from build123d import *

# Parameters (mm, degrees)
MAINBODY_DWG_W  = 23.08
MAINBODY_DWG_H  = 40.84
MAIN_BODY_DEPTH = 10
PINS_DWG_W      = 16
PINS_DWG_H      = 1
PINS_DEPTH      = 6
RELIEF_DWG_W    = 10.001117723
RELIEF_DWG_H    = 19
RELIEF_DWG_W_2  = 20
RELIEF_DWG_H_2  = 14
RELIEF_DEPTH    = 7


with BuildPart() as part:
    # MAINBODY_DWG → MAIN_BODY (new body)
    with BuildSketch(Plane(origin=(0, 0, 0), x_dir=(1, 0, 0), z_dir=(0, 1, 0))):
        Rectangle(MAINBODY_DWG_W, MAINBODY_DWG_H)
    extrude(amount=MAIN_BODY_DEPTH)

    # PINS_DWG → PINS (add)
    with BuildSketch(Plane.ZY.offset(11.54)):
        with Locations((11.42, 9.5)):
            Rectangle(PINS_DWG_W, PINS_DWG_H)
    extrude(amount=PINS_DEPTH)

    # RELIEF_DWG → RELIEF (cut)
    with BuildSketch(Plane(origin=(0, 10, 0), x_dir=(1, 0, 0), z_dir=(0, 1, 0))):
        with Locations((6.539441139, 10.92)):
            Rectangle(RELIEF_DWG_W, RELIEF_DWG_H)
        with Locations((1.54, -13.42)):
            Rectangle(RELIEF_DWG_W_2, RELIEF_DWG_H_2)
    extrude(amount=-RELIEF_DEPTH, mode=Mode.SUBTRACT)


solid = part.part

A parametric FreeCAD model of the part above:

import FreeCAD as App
import Part
import Sketcher

V = App.Vector
Q = App.Units.Quantity


def add_polygon(sketch, points):
    """Adds a closed chain of lines whose ends are joined by coincident constraints."""
    first, n = sketch.GeometryCount, len(points)
    for a, b in zip(points, points[1:] + points[:1]):
        sketch.addGeometry(Part.LineSegment(App.Vector(*a, 0), App.Vector(*b, 0)), False)
    for i in range(n):
        sketch.addConstraint(Sketcher.Constraint("Coincident", first + i, 2, first + (i + 1) % n, 1))

doc = App.newDocument("Part")
body = doc.addObject("PartDesign::Body", "Body")

# Sketch on XZ plane
sketch1 = body.newObject("Sketcher::SketchObject", "Sketch")
sketch1.AttachmentSupport = (doc.getObject("XZ_Plane"), [""])
sketch1.MapMode = "FlatFace"
add_polygon(sketch1, [(-11.54, -20.42), (-11.54, 20.42), (11.54, 20.42), (11.54, -20.42)])  # lines 0-3
sketch1.addConstraint([
    Sketcher.Constraint("Vertical", 0),
    Sketcher.Constraint("Horizontal", 1),
    Sketcher.Constraint("Vertical", 2),
    Sketcher.Constraint("Horizontal", 3),
    Sketcher.Constraint("Symmetric", 0, 2, 2, 2, -1, 1),
    Sketcher.Constraint("DistanceX", 1, 1, 1, 2, Q("23.08 mm")),
    Sketcher.Constraint("DistanceY", 0, 1, 0, 2, Q("40.84 mm")),
])
pad1 = body.newObject("PartDesign::Pad", "Pad")
pad1.Profile = sketch1
pad1.Length = 10
pad1.Reversed = True

# Sketch on YZ plane
sketch2 = body.newObject("Sketcher::SketchObject", "Sketch001")
sketch2.AttachmentSupport = (doc.getObject("YZ_Plane"), [""])
sketch2.MapMode = "FlatFace"
sketch2.AttachmentOffset = App.Placement(V(0, 0, -11.54), App.Rotation())
add_polygon(sketch2, [(10, 3.42), (9, 3.42), (9, 19.42), (10, 19.42)])  # lines 0-3
sketch2.addConstraint([
    Sketcher.Constraint("Horizontal", 0),
    Sketcher.Constraint("Vertical", 1),
    Sketcher.Constraint("Horizontal", 2),
    Sketcher.Constraint("Vertical", 3),
    Sketcher.Constraint("DistanceX", 0, 2, 0, 1, Q("1 mm")),
    Sketcher.Constraint("DistanceY", 1, 1, 1, 2, Q("16 mm")),
    Sketcher.Constraint("DistanceX", -1, 1, 0, 2, Q("9 mm")),
    Sketcher.Constraint("DistanceY", -1, 1, 0, 2, Q("3.42 mm")),
])
pad2 = body.newObject("PartDesign::Pad", "Pad001")
pad2.Profile = sketch2
pad2.Length = 6
pad2.Reversed = True

# Sketch on XZ plane
sketch3 = body.newObject("Sketcher::SketchObject", "Sketch002")
sketch3.AttachmentSupport = (doc.getObject("XZ_Plane"), [""])
sketch3.MapMode = "FlatFace"
sketch3.AttachmentOffset = App.Placement(V(0, 0, -10), App.Rotation())
add_polygon(sketch3, [(1.538882, -20.42), (1.538882, -1.42), (11.54, -1.42), (11.54, -20.42)])  # lines 0-3
add_polygon(sketch3, [(-8.46, 6.42), (-8.46, 20.42), (11.54, 20.42), (11.54, 6.42)])  # lines 4-7
sketch3.addConstraint([
    Sketcher.Constraint("Vertical", 0),
    Sketcher.Constraint("Horizontal", 1),
    Sketcher.Constraint("Vertical", 2),
    Sketcher.Constraint("Horizontal", 3),
    Sketcher.Constraint("Vertical", 4),
    Sketcher.Constraint("Horizontal", 5),
    Sketcher.Constraint("Vertical", 6),
    Sketcher.Constraint("Horizontal", 7),
    Sketcher.Constraint("Symmetric", 2, 2, 5, 2, -1),
    Sketcher.Constraint("DistanceX", 5, 1, 5, 2, Q("20 mm")),
    Sketcher.Constraint("DistanceY", 0, 1, 0, 2, Q("19 mm")),
    Sketcher.Constraint("DistanceY", 4, 1, 4, 2, Q("14 mm")),
    Sketcher.Constraint("DistanceY", 0, 2, -1, 1, Q("1.42 mm")),
    Sketcher.Constraint("DistanceX", -1, 1, 1, 2, Q("11.54 mm")),
    Sketcher.Constraint("DistanceX", 1, 1, 1, 2, Q("10.001118 mm")),
])
pocket1 = body.newObject("PartDesign::Pocket", "Pocket")
pocket1.Profile = sketch3
pocket1.Length = 7
pocket1.Reversed = True

doc.recompute()
